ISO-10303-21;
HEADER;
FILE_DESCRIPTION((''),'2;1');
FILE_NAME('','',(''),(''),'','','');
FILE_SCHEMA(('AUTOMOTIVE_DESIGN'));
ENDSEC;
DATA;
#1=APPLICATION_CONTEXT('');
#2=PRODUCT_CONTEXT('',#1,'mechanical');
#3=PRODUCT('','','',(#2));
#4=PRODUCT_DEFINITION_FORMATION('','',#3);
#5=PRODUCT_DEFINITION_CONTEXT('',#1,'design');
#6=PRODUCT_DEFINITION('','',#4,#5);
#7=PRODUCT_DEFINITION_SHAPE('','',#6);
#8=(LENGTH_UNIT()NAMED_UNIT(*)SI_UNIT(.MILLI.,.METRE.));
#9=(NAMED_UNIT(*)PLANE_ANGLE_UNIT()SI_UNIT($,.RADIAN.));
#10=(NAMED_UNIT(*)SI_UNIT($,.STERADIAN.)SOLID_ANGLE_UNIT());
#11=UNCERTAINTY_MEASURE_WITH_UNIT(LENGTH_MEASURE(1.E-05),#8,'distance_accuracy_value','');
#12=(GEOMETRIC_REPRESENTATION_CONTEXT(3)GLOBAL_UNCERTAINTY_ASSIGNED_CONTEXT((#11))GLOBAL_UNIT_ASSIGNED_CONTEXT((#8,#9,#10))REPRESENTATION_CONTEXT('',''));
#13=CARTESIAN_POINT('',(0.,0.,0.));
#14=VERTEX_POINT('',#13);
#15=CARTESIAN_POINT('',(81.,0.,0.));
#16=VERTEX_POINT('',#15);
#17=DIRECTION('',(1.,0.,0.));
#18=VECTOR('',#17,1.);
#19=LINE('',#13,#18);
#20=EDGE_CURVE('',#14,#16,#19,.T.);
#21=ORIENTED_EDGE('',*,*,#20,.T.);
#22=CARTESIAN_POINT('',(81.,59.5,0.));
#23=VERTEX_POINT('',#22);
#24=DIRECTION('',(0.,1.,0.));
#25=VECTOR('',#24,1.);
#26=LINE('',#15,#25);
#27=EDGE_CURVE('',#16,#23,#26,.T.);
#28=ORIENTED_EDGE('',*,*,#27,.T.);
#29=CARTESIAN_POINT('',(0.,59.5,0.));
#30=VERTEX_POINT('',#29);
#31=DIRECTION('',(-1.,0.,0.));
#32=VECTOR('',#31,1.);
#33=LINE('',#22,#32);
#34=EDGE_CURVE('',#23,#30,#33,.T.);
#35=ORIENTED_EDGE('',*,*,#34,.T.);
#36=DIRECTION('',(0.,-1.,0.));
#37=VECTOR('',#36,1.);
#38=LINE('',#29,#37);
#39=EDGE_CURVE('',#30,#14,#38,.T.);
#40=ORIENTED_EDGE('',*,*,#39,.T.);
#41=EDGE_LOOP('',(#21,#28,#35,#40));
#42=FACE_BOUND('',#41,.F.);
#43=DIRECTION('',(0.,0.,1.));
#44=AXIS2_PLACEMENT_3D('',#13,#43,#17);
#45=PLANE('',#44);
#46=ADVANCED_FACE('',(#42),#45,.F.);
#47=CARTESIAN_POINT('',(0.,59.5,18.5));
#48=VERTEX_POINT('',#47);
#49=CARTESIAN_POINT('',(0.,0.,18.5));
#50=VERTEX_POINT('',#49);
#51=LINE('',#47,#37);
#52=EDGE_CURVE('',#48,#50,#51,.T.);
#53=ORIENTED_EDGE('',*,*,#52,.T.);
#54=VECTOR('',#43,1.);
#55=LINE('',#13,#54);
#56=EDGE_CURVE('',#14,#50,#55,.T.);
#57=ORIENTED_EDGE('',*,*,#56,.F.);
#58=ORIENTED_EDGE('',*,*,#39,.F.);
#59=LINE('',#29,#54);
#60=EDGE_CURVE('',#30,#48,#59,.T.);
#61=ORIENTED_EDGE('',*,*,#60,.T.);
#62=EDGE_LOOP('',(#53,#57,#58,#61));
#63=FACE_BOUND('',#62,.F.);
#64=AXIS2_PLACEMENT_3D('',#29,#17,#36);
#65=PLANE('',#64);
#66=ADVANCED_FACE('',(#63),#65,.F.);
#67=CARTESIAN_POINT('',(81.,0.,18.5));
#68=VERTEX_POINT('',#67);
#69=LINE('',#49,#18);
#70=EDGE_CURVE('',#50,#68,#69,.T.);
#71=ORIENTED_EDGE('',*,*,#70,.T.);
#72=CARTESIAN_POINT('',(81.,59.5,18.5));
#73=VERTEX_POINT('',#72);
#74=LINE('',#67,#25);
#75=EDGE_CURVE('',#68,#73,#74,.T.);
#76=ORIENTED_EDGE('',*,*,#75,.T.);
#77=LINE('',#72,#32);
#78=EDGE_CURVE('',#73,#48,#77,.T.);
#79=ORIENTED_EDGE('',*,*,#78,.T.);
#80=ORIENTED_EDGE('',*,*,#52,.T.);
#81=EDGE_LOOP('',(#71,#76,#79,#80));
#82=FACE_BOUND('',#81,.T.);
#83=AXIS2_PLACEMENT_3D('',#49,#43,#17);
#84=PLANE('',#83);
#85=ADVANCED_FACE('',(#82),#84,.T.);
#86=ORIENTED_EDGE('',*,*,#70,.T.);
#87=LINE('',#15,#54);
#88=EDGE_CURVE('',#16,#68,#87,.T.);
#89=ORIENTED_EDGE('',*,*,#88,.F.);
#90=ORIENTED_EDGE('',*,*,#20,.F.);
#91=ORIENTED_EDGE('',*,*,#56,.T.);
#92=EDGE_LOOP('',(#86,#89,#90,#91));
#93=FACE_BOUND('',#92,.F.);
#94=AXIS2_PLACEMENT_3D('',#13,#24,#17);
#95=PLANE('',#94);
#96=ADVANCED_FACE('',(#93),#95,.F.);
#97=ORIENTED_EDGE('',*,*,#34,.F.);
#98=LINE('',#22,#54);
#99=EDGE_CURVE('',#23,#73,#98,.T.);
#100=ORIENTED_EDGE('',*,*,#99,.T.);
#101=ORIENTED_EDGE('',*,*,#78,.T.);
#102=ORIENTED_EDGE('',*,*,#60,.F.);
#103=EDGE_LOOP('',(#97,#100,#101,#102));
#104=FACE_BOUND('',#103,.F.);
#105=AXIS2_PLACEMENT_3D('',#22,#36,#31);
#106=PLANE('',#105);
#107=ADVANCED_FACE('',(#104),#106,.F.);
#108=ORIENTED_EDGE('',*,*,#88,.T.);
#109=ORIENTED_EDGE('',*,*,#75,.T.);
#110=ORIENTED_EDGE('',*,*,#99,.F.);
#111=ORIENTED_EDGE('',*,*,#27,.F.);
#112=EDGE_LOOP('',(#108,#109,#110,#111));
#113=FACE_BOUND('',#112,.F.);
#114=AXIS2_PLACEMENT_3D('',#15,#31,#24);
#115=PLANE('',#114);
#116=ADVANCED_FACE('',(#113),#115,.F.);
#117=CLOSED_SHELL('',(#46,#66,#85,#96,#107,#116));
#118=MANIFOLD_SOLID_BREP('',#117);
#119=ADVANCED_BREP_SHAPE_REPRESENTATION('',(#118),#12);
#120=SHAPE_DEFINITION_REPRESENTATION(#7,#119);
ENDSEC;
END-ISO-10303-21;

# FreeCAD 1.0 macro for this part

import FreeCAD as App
import Part
import Sketcher

V = App.Vector
Q = App.Units.Quantity

doc = App.newDocument("Part")
body = doc.addObject("PartDesign::Body", "Body")

# Sketch on XY plane
sketch1 = body.newObject("Sketcher::SketchObject", "Sketch")
sketch1.AttachmentSupport = (doc.getObject("XY_Plane"), [""])
sketch1.MapMode = "FlatFace"
sketch1.addGeometry(Part.LineSegment(V(0, 60, 0), V(0, 0, 0)), False)
sketch1.addGeometry(Part.LineSegment(V(0, 0, 0), V(81, 0, 0)), False)
sketch1.addGeometry(Part.LineSegment(V(81, 0, 0), V(81, 60, 0)), False)
sketch1.addGeometry(Part.LineSegment(V(81, 60, 0), V(0, 60, 0)), False)
sketch1.addConstraint(Sketcher.Constraint("Coincident", 0, 2, 1, 1))
sketch1.addConstraint(Sketcher.Constraint("Coincident", 1, 2, 2, 1))
sketch1.addConstraint(Sketcher.Constraint("Coincident", 2, 2, 3, 1))
sketch1.addConstraint(Sketcher.Constraint("Coincident", 3, 2, 0, 1))
sketch1.addConstraint(Sketcher.Constraint("Vertical", 0))
sketch1.addConstraint(Sketcher.Constraint("Horizontal", 1))
sketch1.addConstraint(Sketcher.Constraint("Vertical", 2))
sketch1.addConstraint(Sketcher.Constraint("Horizontal", 3))
sketch1.addConstraint(Sketcher.Constraint("Coincident", 0, 2, -1, 1))
sketch1.addConstraint(Sketcher.Constraint("DistanceX", 1, 1, 1, 2, Q("81 mm")))
sketch1.addConstraint(Sketcher.Constraint("DistanceY", 0, 2, 0, 1, Q("59.5 mm")))
pad1 = body.newObject("PartDesign::Pad", "Pad")
pad1.Profile = sketch1
pad1.Length = 18.5

doc.recompute()
